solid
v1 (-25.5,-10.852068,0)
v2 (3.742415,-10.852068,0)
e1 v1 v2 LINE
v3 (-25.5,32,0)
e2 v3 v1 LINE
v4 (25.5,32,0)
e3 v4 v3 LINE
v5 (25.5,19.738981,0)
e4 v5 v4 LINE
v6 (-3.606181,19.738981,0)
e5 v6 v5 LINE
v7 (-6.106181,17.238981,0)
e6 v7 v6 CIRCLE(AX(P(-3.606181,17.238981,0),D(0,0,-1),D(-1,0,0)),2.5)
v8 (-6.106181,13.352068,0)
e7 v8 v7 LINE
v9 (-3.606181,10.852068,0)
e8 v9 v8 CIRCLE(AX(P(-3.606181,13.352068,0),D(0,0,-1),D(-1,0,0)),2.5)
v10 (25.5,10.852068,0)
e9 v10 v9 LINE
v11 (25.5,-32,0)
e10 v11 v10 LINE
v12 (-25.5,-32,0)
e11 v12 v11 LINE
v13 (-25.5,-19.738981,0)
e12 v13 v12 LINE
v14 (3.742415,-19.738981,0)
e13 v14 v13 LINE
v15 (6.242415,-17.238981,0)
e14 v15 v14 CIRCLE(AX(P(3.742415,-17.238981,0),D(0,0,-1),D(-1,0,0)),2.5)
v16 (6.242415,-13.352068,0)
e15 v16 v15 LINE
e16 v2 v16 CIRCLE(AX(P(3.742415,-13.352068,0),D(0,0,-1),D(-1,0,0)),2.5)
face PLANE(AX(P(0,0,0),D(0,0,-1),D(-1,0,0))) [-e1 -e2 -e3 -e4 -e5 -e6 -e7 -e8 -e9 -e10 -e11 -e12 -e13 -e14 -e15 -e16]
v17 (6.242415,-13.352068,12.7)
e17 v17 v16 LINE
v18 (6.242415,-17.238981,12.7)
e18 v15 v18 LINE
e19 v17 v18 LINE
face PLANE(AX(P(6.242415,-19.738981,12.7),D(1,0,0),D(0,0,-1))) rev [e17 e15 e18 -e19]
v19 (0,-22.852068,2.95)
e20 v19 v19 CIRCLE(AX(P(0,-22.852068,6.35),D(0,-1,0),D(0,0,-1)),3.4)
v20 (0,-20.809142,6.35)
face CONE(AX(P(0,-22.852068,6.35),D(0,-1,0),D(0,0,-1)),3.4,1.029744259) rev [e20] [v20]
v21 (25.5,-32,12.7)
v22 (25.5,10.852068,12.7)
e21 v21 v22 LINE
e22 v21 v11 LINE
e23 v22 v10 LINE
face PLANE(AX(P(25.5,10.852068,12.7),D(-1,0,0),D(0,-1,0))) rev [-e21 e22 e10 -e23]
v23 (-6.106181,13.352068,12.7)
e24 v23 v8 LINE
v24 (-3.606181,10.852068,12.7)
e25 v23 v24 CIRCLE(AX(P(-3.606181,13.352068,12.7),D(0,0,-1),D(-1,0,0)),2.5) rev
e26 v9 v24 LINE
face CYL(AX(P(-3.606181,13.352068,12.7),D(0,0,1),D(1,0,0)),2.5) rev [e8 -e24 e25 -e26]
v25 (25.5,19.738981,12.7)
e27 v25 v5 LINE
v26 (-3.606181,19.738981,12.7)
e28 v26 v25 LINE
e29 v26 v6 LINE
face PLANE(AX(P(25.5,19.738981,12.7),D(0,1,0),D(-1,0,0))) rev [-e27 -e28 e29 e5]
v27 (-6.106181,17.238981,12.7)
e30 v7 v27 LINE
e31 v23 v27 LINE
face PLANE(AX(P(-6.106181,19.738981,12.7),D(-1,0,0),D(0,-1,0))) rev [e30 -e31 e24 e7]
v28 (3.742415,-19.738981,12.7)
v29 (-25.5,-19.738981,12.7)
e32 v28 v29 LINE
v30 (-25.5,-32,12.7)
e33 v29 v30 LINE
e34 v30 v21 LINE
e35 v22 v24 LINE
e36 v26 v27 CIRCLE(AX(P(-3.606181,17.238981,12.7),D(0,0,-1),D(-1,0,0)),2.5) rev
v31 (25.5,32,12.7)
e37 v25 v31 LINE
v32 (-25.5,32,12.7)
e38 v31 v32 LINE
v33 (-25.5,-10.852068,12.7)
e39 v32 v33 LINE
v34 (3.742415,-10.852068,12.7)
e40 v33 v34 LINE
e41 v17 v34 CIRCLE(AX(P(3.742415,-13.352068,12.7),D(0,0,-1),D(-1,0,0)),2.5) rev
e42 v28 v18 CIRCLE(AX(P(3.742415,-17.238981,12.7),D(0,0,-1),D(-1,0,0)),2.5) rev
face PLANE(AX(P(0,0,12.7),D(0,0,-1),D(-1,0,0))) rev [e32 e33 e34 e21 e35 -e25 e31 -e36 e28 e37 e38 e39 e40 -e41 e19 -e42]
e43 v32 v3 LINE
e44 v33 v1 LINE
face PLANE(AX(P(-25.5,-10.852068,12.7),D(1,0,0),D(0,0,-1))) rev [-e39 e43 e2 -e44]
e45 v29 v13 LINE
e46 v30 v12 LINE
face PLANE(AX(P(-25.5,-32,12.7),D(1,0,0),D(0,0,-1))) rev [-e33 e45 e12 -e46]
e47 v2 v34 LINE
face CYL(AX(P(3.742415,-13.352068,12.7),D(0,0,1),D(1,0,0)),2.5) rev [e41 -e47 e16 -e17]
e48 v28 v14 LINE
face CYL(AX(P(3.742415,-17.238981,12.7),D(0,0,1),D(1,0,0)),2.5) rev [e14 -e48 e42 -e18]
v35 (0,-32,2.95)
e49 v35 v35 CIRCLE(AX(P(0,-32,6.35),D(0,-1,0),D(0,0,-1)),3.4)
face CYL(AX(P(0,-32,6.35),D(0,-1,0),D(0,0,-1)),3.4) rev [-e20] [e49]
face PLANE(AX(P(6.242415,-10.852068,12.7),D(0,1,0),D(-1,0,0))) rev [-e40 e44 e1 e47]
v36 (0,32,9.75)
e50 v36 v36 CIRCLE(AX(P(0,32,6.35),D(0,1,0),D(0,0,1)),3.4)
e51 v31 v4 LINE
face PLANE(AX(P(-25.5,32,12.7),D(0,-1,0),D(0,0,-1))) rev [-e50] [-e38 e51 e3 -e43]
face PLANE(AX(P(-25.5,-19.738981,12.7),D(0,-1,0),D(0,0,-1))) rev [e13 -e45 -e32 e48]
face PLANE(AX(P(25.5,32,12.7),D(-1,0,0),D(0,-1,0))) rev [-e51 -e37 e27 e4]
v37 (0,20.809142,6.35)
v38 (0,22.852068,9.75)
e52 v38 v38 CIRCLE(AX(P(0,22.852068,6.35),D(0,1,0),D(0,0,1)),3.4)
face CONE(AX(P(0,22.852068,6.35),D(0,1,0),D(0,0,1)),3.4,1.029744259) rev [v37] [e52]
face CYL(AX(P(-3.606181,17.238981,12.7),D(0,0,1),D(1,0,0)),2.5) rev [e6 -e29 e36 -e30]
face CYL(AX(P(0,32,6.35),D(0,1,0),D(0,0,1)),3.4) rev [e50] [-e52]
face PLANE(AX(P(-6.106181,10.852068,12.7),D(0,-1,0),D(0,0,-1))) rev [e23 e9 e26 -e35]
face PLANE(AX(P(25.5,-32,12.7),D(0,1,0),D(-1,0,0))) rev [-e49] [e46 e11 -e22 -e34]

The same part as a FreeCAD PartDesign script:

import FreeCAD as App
import Part
import Sketcher
Q = App.Units.Quantity


def edges_at(feature, points):
    """Names of the edges that pass closest to the given points."""
    edges = feature.Shape.Edges
    near = lambda p: min(range(len(edges)), key=lambda i: edges[i].distToShape(Part.Vertex(*p))[0])
    return sorted({f"Edge{near(p) + 1}" for p in points})


def add_polygon(sketch, points):
    """Adds a closed chain of lines whose ends are joined by coincident constraints."""
    first, n = sketch.GeometryCount, len(points)
    for a, b in zip(points, points[1:] + points[:1]):
        sketch.addGeometry(Part.LineSegment(App.Vector(*a, 0), App.Vector(*b, 0)), False)
    for i in range(n):
        sketch.addConstraint(Sketcher.Constraint("Coincident", first + i, 2, first + (i + 1) % n, 1))

doc = App.newDocument("Part")
body = doc.addObject("PartDesign::Body", "Body")

sketch1 = doc.addObject("Sketcher::SketchObject", "Sketch")
body.addObject(sketch1)
sketch1.AttachmentSupport = (doc.XY_Plane, [""])
sketch1.MapMode = "FlatFace"
add_polygon(sketch1, [(25.5, 19.738981), (25.5, 32), (-25.5, 32), (-25.5, -10.852068), (6.242415, -10.852068), (6.242415, -19.738981), (-25.5, -19.738981), (-25.5, -32), (25.5, -32), (25.5, 10.852068), (-6.106181, 10.852068), (-6.106181, 19.738981)])
sketch1.addConstraint(Sketcher.Constraint("Vertical", 0))
sketch1.addConstraint(Sketcher.Constraint("Horizontal", 1))
sketch1.addConstraint(Sketcher.Constraint("Vertical", 2))
sketch1.addConstraint(Sketcher.Constraint("Horizontal", 3))
sketch1.addConstraint(Sketcher.Constraint("Vertical", 4))
sketch1.addConstraint(Sketcher.Constraint("Horizontal", 5))
sketch1.addConstraint(Sketcher.Constraint("Vertical", 6))
sketch1.addConstraint(Sketcher.Constraint("Horizontal", 7))
sketch1.addConstraint(Sketcher.Constraint("Vertical", 8))
sketch1.addConstraint(Sketcher.Constraint("Horizontal", 9))
sketch1.addConstraint(Sketcher.Constraint("Vertical", 10))
sketch1.addConstraint(Sketcher.Constraint("Horizontal", 11))
sketch1.addConstraint(Sketcher.Constraint("Symmetric", 0, 2, 6, 2, -1, 1))
sketch1.addConstraint(Sketcher.Constraint("Symmetric", 2, 2, 8, 2, -1, 1))
sketch1.addConstraint(Sketcher.Constraint("Vertical", 2, 2, 5, 2))
sketch1.addConstraint(Sketcher.Constraint("Equal", 0, 6))
sketch1.addConstraint(Sketcher.Constraint("DistanceX", 1, 2, 1, 1, Q("51 mm")))
sketch1.addConstraint(Sketcher.Constraint("DistanceY", -1, 1, 0, 2, Q("32 mm")))
sketch1.addConstraint(Sketcher.Constraint("DistanceX", 9, 2, 9, 1, Q("31.606181 mm")))
sketch1.addConstraint(Sketcher.Constraint("DistanceY", 0, 1, 0, 2, Q("12.261019 mm")))
sketch1.addConstraint(Sketcher.Constraint("DistanceX", 3, 1, 3, 2, Q("31.742415 mm")))
sketch1.addConstraint(Sketcher.Constraint("DistanceY", 2, 2, 2, 1, Q("42.852068 mm")))
pad1 = doc.addObject("PartDesign::Pad", "Pad")
body.addObject(pad1)
pad1.Profile = sketch1
pad1.Length = 12.7

sketch2 = doc.addObject("Sketcher::SketchObject", "Sketch001")
body.addObject(sketch2)
sketch2.AttachmentSupport = (doc.XZ_Plane, [""])
sketch2.MapMode = "FlatFace"
sketch2.AttachmentOffset = App.Placement(App.Vector(0, 0, -32), App.Rotation())
sketch2.addGeometry(Part.Circle(App.Vector(0, 6.35, 0), App.Vector(0, 0, 1), 3.4), False)
sketch2.addConstraint(Sketcher.Constraint("PointOnObject", 0, 3, -2))
sketch2.addConstraint(Sketcher.Constraint("Diameter", 0, Q("6.8 mm")))
sketch2.addConstraint(Sketcher.Constraint("DistanceY", -1, 1, 0, 3, Q("6.35 mm")))
doc.recompute()
hole = doc.addObject("PartDesign::Hole", "Hole")
body.addObject(hole)
hole.Profile = sketch2
hole.ThreadType = "None"
hole.Diameter = 6.8
hole.DepthType = "Dimension"
hole.Depth = 9.147932
hole.DrillPoint = "Angled"
hole.DrillPointAngle = 118
hole.Reversed = True

sketch3 = doc.addObject("Sketcher::SketchObject", "Sketch002")
body.addObject(sketch3)
sketch3.AttachmentSupport = (doc.XZ_Plane, [""])
sketch3.MapMode = "FlatFace"
sketch3.AttachmentOffset = App.Placement(App.Vector(0, 0, 32), App.Rotation())
sketch3.addGeometry(Part.Circle(App.Vector(0, 6.35, 0), App.Vector(0, 0, 1), 3.4), False)
sketch3.addConstraint(Sketcher.Constraint("PointOnObject", 0, 3, -2))
sketch3.addConstraint(Sketcher.Constraint("Diameter", 0, Q("6.8 mm")))
sketch3.addConstraint(Sketcher.Constraint("DistanceY", -1, 1, 0, 3, Q("6.35 mm")))
doc.recompute()
hole2 = doc.addObject("PartDesign::Hole", "Hole001")
body.addObject(hole2)
hole2.Profile = sketch3
hole2.ThreadType = "None"
hole2.Diameter = 6.8
hole2.DepthType = "Dimension"
hole2.Depth = 9.147932
hole2.DrillPoint = "Angled"
hole2.DrillPointAngle = 118
doc.recompute()

fillet = doc.addObject("PartDesign::Fillet", "Fillet")
body.addObject(fillet)
fillet.Base = (hole2, edges_at(hole2, [(-6.106, 19.739, 6.35)]))
fillet.Radius = 2.5
doc.recompute()

fillet2 = doc.addObject("PartDesign::Fillet", "Fillet001")
body.addObject(fillet2)
fillet2.Base = (fillet, edges_at(fillet, [(-6.106, 10.852, 6.35)]))
fillet2.Radius = 2.5
doc.recompute()

fillet3 = doc.addObject("PartDesign::Fillet", "Fillet002")
body.addObject(fillet3)
fillet3.Base = (fillet2, edges_at(fillet2, [(6.242, -10.852, 6.35)]))
fillet3.Radius = 2.5
doc.recompute()

fillet4 = doc.addObject("PartDesign::Fillet", "Fillet003")
body.addObject(fillet4)
fillet4.Base = (fillet3, edges_at(fillet3, [(6.242, -19.739, 6.35)]))
fillet4.Radius = 2.5

doc.recompute()
